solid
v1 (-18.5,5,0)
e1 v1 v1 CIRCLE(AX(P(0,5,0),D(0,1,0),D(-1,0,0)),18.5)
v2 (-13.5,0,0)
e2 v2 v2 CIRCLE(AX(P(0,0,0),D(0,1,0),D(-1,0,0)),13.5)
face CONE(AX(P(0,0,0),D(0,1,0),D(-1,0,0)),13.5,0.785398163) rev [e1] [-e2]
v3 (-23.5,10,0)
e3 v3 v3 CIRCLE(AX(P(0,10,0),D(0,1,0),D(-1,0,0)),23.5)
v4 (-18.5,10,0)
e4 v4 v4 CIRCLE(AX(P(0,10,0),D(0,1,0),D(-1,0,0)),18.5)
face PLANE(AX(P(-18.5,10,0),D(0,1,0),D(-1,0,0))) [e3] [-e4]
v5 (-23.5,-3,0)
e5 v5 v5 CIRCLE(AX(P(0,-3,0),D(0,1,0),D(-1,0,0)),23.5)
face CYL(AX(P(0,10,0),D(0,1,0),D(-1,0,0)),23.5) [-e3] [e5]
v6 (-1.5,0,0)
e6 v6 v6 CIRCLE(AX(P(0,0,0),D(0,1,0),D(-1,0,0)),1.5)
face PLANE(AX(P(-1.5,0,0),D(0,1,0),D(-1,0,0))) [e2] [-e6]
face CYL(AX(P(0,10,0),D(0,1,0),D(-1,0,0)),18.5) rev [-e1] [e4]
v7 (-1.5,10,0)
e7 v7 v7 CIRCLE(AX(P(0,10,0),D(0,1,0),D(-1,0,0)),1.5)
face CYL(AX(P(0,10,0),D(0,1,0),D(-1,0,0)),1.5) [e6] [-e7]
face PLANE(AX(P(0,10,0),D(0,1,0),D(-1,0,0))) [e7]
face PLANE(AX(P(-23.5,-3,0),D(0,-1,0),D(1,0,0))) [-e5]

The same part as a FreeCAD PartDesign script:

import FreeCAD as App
import Part
import Sketcher

V = App.Vector
Q = App.Units.Quantity

doc = App.newDocument("Part")
body = doc.addObject("PartDesign::Body", "Body")

# Sketch on XY plane
sketch1 = body.newObject("Sketcher::SketchObject", "Sketch")
sketch1.AttachmentSupport = (doc.getObject("XY_Plane"), [""])
sketch1.MapMode = "FlatFace"
sketch1.addGeometry([
    Part.LineSegment(V(-18.5, 5, 0), V(-18.5, 10, 0)),  # 0
    Part.LineSegment(V(-18.5, 10, 0), V(-23.5, 10, 0)),  # 1
    Part.LineSegment(V(-23.5, 10, 0), V(-23.5, -3, 0)),  # 2
    Part.LineSegment(V(-23.5, -3, 0), V(0, -3, 0)),  # 3
    Part.LineSegment(V(0, -3, 0), V(0, 10, 0)),  # 4
    Part.LineSegment(V(0, 10, 0), V(-1.5, 10, 0)),  # 5
    Part.LineSegment(V(-1.5, 10, 0), V(-1.5, 0, 0)),  # 6
    Part.LineSegment(V(-1.5, 0, 0), V(-13.5, 0, 0)),  # 7
    Part.LineSegment(V(-13.5, 0, 0), V(-18.5, 5, 0)),  # 8
], False)
sketch1.addConstraint([
    Sketcher.Constraint("Coincident", 0, 2, 1, 1),
    Sketcher.Constraint("Coincident", 1, 2, 2, 1),
    Sketcher.Constraint("Coincident", 2, 2, 3, 1),
    Sketcher.Constraint("Coincident", 3, 2, 4, 1),
    Sketcher.Constraint("Coincident", 4, 2, 5, 1),
    Sketcher.Constraint("Coincident", 5, 2, 6, 1),
    Sketcher.Constraint("Coincident", 6, 2, 7, 1),
    Sketcher.Constraint("Coincident", 7, 2, 8, 1),
    Sketcher.Constraint("Coincident", 8, 2, 0, 1),
    Sketcher.Constraint("Vertical", 0),
    Sketcher.Constraint("Horizontal", 1),
    Sketcher.Constraint("Vertical", 2),
    Sketcher.Constraint("Horizontal", 3),
    Sketcher.Constraint("Vertical", 4),
    Sketcher.Constraint("Horizontal", 5),
    Sketcher.Constraint("Vertical", 6),
    Sketcher.Constraint("Horizontal", 7),
    Sketcher.Constraint("PointOnObject", 3, 2, -2),
    Sketcher.Constraint("PointOnObject", 6, 2, -1),
    Sketcher.Constraint("Horizontal", 1, 2, 4, 2),
    Sketcher.Constraint("Equal", 1, 0),
    Sketcher.Constraint("DistanceX", 1, 2, 1, 1, Q("5 mm")),
    Sketcher.Constraint("DistanceX", 7, 2, 7, 1, Q("12 mm")),
    Sketcher.Constraint("DistanceY", 2, 2, 2, 1, Q("13 mm")),
    Sketcher.Constraint("DistanceY", 6, 2, 6, 1, Q("10 mm")),
    Sketcher.Constraint("Angle", 8, Q("135 deg")),
    Sketcher.Constraint("DistanceX", 3, 1, 3, 2, Q("23.5 mm")),
])
revolution = body.newObject("PartDesign::Revolution", "Revolution")
revolution.Profile = sketch1
revolution.ReferenceAxis = (sketch1, ["V_Axis"])
revolution.Angle = 360

doc.recompute()
